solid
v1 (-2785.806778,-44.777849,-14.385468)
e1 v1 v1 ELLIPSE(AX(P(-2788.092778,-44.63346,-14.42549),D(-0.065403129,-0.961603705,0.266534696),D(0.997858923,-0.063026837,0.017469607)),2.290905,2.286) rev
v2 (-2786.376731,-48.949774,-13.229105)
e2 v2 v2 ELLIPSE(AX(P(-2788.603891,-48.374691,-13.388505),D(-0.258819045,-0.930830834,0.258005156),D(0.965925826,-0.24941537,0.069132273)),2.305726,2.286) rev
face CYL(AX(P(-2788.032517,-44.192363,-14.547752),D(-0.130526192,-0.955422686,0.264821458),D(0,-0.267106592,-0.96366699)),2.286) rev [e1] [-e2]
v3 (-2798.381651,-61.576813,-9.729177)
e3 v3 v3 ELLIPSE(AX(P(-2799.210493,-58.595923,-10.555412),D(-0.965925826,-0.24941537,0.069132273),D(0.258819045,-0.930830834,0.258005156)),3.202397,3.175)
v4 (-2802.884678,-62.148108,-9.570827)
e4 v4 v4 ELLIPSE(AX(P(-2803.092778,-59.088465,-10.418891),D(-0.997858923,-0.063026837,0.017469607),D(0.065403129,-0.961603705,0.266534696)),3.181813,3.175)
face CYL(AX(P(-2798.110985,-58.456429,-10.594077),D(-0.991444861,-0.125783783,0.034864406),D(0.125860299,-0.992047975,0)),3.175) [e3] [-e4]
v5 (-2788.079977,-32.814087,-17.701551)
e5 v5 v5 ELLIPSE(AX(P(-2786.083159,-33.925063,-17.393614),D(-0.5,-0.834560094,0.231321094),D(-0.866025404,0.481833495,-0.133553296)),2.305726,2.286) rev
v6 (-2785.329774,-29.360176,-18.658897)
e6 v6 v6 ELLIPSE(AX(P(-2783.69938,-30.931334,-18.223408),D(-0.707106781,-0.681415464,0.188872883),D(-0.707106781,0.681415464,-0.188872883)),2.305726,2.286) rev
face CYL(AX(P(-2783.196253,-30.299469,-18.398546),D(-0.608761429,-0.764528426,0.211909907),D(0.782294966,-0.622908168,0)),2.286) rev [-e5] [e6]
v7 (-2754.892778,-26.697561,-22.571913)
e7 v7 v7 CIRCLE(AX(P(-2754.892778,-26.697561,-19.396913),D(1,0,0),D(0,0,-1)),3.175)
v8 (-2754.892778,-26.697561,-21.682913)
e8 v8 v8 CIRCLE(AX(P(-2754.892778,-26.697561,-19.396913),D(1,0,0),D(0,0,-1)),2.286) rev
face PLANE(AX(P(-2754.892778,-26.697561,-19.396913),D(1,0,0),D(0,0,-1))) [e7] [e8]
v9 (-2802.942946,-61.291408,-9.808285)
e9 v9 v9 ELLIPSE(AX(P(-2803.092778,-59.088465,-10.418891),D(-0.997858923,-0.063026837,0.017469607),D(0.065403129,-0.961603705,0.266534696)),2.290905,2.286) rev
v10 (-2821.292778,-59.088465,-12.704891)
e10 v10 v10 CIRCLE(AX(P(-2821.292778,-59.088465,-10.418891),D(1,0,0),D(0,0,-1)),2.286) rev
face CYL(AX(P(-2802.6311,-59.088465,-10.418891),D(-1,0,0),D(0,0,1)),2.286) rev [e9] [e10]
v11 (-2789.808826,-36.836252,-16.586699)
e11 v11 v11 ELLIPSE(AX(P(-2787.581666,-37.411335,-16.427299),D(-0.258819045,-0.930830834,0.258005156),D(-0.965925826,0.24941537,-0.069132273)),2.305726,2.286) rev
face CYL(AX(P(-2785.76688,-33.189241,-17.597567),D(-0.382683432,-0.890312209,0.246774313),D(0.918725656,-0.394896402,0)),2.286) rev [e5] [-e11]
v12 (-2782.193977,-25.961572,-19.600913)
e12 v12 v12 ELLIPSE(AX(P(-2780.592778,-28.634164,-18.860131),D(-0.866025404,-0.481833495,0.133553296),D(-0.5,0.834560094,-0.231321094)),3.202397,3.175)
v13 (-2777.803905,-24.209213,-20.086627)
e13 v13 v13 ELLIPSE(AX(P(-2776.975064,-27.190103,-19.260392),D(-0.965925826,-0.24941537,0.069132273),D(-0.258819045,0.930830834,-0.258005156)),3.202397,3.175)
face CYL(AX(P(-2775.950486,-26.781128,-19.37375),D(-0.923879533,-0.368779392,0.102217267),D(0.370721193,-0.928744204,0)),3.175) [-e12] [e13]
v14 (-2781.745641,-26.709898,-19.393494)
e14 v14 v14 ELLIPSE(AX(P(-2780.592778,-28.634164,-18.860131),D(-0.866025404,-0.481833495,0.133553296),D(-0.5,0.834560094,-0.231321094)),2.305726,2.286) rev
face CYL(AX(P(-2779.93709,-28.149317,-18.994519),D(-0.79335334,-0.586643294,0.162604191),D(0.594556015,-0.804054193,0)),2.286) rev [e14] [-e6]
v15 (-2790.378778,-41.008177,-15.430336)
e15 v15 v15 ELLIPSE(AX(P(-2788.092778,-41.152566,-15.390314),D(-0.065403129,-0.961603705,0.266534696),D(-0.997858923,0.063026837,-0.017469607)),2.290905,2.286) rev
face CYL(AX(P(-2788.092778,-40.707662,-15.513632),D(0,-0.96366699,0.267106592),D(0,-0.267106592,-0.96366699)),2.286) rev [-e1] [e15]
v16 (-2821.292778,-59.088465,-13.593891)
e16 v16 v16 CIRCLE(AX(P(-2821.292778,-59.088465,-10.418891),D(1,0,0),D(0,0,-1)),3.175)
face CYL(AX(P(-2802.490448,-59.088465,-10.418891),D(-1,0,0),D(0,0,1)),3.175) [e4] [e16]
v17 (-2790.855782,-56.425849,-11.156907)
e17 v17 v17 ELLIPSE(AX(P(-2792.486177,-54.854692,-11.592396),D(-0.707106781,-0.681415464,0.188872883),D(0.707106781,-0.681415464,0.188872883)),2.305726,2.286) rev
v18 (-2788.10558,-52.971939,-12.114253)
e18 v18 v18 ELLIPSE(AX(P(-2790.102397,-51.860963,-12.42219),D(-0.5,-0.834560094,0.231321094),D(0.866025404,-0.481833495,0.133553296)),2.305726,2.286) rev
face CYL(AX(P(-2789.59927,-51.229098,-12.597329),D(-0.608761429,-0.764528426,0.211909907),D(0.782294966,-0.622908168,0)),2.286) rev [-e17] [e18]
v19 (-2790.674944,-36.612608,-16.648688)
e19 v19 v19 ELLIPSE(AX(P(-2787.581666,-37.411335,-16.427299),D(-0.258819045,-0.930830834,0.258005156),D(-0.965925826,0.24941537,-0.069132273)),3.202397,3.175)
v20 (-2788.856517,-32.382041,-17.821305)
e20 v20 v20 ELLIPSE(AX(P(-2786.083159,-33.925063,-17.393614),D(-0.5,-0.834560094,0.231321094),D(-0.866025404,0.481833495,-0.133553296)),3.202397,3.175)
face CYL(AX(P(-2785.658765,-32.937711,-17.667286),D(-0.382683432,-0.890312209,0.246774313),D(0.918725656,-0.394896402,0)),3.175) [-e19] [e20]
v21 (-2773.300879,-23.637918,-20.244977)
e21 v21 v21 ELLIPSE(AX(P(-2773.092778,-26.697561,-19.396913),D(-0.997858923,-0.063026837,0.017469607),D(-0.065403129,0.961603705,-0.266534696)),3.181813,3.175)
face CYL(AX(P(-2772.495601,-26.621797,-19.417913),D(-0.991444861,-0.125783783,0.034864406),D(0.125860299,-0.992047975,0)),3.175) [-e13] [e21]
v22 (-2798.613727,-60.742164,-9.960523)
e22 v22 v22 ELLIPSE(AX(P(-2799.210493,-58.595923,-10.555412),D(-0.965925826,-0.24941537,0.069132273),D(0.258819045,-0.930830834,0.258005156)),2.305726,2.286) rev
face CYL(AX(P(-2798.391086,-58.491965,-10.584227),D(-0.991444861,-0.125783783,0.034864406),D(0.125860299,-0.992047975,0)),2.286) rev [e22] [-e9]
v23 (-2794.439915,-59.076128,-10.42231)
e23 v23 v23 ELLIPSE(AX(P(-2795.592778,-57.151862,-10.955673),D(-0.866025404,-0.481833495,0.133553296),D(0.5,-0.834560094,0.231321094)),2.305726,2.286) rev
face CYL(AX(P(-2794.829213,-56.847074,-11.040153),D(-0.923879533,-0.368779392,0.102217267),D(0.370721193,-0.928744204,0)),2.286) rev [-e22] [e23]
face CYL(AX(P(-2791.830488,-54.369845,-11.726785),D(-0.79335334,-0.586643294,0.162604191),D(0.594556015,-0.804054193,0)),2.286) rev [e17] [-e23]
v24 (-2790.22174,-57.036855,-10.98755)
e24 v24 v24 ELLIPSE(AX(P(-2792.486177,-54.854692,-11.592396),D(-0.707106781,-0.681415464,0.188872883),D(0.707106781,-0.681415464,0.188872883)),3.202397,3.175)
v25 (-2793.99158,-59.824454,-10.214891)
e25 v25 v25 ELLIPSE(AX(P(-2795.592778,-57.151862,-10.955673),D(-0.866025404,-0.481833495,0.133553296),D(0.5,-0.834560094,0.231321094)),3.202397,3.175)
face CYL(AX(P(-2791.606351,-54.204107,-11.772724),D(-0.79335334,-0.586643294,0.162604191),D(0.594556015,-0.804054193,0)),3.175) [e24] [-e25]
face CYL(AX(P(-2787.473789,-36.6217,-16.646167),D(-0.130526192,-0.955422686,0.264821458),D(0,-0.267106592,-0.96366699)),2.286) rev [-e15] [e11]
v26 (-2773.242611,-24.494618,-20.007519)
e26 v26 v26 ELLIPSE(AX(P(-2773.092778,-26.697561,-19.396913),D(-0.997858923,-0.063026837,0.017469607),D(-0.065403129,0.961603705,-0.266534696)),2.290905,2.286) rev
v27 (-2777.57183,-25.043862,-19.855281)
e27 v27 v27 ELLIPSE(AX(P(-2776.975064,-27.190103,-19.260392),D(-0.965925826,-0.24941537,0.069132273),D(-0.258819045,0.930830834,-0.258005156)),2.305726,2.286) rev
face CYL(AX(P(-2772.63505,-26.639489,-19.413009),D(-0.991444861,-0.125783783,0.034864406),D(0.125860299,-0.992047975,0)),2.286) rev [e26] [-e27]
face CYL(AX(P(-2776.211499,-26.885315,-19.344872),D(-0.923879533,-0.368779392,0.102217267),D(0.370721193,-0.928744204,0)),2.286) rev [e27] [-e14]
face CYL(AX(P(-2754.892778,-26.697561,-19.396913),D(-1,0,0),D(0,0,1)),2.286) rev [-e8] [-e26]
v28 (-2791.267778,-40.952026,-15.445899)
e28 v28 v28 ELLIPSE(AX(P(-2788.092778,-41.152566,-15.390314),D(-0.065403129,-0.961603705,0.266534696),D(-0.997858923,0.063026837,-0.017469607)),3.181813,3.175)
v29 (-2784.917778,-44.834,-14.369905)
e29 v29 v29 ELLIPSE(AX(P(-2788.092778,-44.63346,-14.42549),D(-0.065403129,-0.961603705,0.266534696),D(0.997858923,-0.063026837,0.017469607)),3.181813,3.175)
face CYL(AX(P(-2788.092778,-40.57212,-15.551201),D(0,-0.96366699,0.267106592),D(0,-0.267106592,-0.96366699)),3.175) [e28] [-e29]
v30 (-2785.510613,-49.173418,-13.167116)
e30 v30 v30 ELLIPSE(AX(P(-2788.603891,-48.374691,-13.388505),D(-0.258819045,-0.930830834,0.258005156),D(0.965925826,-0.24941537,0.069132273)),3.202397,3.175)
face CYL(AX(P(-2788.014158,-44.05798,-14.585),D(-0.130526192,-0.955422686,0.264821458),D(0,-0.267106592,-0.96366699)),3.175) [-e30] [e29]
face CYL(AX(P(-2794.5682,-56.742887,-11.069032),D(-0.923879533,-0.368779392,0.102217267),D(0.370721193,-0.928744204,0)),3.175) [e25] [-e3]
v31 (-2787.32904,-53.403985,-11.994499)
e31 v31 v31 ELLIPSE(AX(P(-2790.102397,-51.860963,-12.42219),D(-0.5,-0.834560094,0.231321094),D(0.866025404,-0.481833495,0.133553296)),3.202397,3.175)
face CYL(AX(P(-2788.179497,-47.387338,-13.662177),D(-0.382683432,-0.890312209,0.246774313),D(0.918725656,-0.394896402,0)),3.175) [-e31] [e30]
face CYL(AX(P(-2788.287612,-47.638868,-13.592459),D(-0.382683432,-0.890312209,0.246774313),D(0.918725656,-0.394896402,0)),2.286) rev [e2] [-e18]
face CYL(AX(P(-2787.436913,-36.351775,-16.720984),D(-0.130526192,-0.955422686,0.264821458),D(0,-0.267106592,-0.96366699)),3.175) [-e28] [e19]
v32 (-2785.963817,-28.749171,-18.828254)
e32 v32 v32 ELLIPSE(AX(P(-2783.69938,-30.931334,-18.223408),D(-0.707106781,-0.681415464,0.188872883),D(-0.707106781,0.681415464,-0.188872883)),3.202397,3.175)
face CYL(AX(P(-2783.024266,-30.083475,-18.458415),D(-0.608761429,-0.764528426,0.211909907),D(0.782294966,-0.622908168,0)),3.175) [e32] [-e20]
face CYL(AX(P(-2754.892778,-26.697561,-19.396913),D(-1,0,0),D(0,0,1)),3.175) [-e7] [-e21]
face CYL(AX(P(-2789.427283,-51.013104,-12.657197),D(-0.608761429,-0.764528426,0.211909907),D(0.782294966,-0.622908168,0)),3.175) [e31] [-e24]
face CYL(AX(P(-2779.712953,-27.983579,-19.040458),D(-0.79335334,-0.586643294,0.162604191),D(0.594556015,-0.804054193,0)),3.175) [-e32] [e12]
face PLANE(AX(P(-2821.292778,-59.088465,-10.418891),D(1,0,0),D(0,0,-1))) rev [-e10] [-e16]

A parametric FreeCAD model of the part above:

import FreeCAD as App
import Part
import Sketcher
from FreeCAD import Vector
Q = App.Units.Quantity

doc = App.newDocument("Part")
params = doc.addObject("Spreadsheet::Sheet", "Params")
for row, (alias, value) in enumerate([
    ("sketch1_diameter", "0.25 in"),
    ("sketch1_diameter2", "0.18 in"),
], start=1):
    params.set(f"A{row}", alias)
    params.set(f"B{row}", "=" + value)
    params.setAlias(f"B{row}", alias)

body = doc.addObject("PartDesign::Body", "Body")

# Sketch on YZ plane
sketch1 = body.newObject("Sketcher::SketchObject", "Sketch")
sketch1.AttachmentSupport = (doc.getObject("YZ_Plane"), [""])
sketch1.MapMode = "FlatFace"
sketch1.AttachmentOffset = App.Placement(Vector(0, 0, -2754.892778), App.Rotation())
sketch1.addGeometry([
    Part.Circle(Vector(-26.7, -19.4, 0), Vector(0, 0, 1), 3.2),
    Part.Circle(Vector(-26.7, -19.4, 0), Vector(0, 0, 1), 2.3),
], False)
sketch1.addConstraint([
    Sketcher.Constraint("Coincident", 1, 3, 0, 3),
    Sketcher.Constraint("Diameter", 0, Q("0.25 in")),
    Sketcher.Constraint("Diameter", 1, Q("0.18 in")),
    Sketcher.Constraint("DistanceX", 0, 3, -1, 1, Q("26.697561 mm")),
    Sketcher.Constraint("DistanceY", 0, 3, -1, 1, Q("19.396913 mm")),
])
sketch1.setExpression("Constraints[1]", "Params.sketch1_diameter")
sketch1.setExpression("Constraints[2]", "Params.sketch1_diameter2")

# Sketch on an angled plane
sketch2 = body.newObject("Sketcher::SketchObject", "Sketch001")
sketch2.Placement = App.Placement(Vector(0, -6.897563, -24.885023), App.Rotation(Vector(0, -0.96366699, 0.267106592), Vector(0.999999999, 0, 0), Vector(0, 0.267106592, 0.96366699), "ZXY"))
sketch2.addGeometry([
    Part.LineSegment(Vector(20.5, -2754.9, 0), Vector(20.5, -2773.1, 0)),  # 0
    Part.LineSegment(Vector(20.5, -2773.1, 0), Vector(21.1, -2777, 0)),  # 1
    Part.LineSegment(Vector(21.1, -2777, 0), Vector(22.6, -2780.6, 0)),  # 2
    Part.LineSegment(Vector(22.6, -2780.6, 0), Vector(24.9, -2783.7, 0)),  # 3
    Part.LineSegment(Vector(24.9, -2783.7, 0), Vector(28, -2786.1, 0)),  # 4
    Part.LineSegment(Vector(28, -2786.1, 0), Vector(31.7, -2787.6, 0)),  # 5
    Part.LineSegment(Vector(31.7, -2787.6, 0), Vector(35.5, -2788.1, 0)),  # 6
    Part.LineSegment(Vector(35.5, -2788.1, 0), Vector(39.2, -2788.1, 0)),  # 7
    Part.LineSegment(Vector(39.2, -2788.1, 0), Vector(43, -2788.6, 0)),  # 8
    Part.LineSegment(Vector(43, -2788.6, 0), Vector(46.7, -2790.1, 0)),  # 9
    Part.LineSegment(Vector(46.7, -2790.1, 0), Vector(49.8, -2792.5, 0)),  # 10
    Part.LineSegment(Vector(49.8, -2792.5, 0), Vector(52.1, -2795.6, 0)),  # 11
    Part.LineSegment(Vector(52.1, -2795.6, 0), Vector(53.6, -2799.2, 0)),  # 12
    Part.LineSegment(Vector(53.6, -2799.2, 0), Vector(54.2, -2803.1, 0)),  # 13
    Part.LineSegment(Vector(54.2, -2803.1, 0), Vector(54.2, -2821.3, 0)),  # 14
], False)
sketch2.addConstraint([
    Sketcher.Constraint("Coincident", 0, 2, 1, 1),
    Sketcher.Constraint("Coincident", 1, 2, 2, 1),
    Sketcher.Constraint("Coincident", 2, 2, 3, 1),
    Sketcher.Constraint("Coincident", 3, 2, 4, 1),
    Sketcher.Constraint("Coincident", 4, 2, 5, 1),
    Sketcher.Constraint("Coincident", 5, 2, 6, 1),
    Sketcher.Constraint("Coincident", 6, 2, 7, 1),
    Sketcher.Constraint("Coincident", 7, 2, 8, 1),
    Sketcher.Constraint("Coincident", 8, 2, 9, 1),
    Sketcher.Constraint("Coincident", 9, 2, 10, 1),
    Sketcher.Constraint("Coincident", 10, 2, 11, 1),
    Sketcher.Constraint("Coincident", 11, 2, 12, 1),
    Sketcher.Constraint("Coincident", 12, 2, 13, 1),
    Sketcher.Constraint("Coincident", 13, 2, 14, 1),
    Sketcher.Constraint("Vertical", 0),
    Sketcher.Constraint("Horizontal", 7),
    Sketcher.Constraint("Vertical", 14),
    Sketcher.Constraint("Parallel", 6, 8),
    Sketcher.Constraint("Parallel", 5, 9),
    Sketcher.Constraint("Parallel", 4, 10),
    Sketcher.Constraint("Parallel", 3, 11),
    Sketcher.Constraint("Parallel", 2, 12),
    Sketcher.Constraint("Parallel", 1, 13),
    Sketcher.Constraint("Equal", 0, 14),
    Sketcher.Constraint("Equal", 1, 2),
    Sketcher.Constraint("Equal", 2, 3),
    Sketcher.Constraint("Equal", 3, 4),
    Sketcher.Constraint("Equal", 4, 5),
    Sketcher.Constraint("Equal", 5, 6),
    Sketcher.Constraint("Equal", 6, 8),
    Sketcher.Constraint("Equal", 8, 9),
    Sketcher.Constraint("Equal", 9, 10),
    Sketcher.Constraint("Equal", 10, 11),
    Sketcher.Constraint("Equal", 11, 12),
    Sketcher.Constraint("Equal", 12, 13),
    Sketcher.Constraint("Angle", 1, Q("-82.5 deg")),
    Sketcher.Constraint("Angle", 2, Q("-67.5 deg")),
    Sketcher.Constraint("Angle", 3, Q("-52.5 deg")),
    Sketcher.Constraint("Angle", 4, Q("-37.5 deg")),
    Sketcher.Constraint("Angle", 5, Q("-22.5 deg")),
    Sketcher.Constraint("Angle", 6, Q("-7.5 deg")),
    Sketcher.Constraint("DistanceY", 0, 2, 0, 1, Q("18.2 mm")),
    Sketcher.Constraint("DistanceY", 2, 2, 0, 2, Q("7.5 mm")),
    Sketcher.Constraint("DistanceX", 7, 1, 7, 2, Q("3.612134 mm")),
    Sketcher.Constraint("DistanceY", 1, 2, -1, 1, Q("2776.975059 mm")),
    Sketcher.Constraint("DistanceX", -1, 1, 5, 2, Q("31.664229 mm")),
])
doc.recompute()

additivepipe = body.newObject("PartDesign::AdditivePipe", "AdditivePipe")
additivepipe.Profile = sketch1
additivepipe.Spine = (sketch2, ["Edge1", "Edge2", "Edge3", "Edge4", "Edge5", "Edge6", "Edge7", "Edge8", "Edge9", "Edge10", "Edge11", "Edge12", "Edge13", "Edge14", "Edge15"])
additivepipe.Transition = "Right corner"

doc.recompute()
